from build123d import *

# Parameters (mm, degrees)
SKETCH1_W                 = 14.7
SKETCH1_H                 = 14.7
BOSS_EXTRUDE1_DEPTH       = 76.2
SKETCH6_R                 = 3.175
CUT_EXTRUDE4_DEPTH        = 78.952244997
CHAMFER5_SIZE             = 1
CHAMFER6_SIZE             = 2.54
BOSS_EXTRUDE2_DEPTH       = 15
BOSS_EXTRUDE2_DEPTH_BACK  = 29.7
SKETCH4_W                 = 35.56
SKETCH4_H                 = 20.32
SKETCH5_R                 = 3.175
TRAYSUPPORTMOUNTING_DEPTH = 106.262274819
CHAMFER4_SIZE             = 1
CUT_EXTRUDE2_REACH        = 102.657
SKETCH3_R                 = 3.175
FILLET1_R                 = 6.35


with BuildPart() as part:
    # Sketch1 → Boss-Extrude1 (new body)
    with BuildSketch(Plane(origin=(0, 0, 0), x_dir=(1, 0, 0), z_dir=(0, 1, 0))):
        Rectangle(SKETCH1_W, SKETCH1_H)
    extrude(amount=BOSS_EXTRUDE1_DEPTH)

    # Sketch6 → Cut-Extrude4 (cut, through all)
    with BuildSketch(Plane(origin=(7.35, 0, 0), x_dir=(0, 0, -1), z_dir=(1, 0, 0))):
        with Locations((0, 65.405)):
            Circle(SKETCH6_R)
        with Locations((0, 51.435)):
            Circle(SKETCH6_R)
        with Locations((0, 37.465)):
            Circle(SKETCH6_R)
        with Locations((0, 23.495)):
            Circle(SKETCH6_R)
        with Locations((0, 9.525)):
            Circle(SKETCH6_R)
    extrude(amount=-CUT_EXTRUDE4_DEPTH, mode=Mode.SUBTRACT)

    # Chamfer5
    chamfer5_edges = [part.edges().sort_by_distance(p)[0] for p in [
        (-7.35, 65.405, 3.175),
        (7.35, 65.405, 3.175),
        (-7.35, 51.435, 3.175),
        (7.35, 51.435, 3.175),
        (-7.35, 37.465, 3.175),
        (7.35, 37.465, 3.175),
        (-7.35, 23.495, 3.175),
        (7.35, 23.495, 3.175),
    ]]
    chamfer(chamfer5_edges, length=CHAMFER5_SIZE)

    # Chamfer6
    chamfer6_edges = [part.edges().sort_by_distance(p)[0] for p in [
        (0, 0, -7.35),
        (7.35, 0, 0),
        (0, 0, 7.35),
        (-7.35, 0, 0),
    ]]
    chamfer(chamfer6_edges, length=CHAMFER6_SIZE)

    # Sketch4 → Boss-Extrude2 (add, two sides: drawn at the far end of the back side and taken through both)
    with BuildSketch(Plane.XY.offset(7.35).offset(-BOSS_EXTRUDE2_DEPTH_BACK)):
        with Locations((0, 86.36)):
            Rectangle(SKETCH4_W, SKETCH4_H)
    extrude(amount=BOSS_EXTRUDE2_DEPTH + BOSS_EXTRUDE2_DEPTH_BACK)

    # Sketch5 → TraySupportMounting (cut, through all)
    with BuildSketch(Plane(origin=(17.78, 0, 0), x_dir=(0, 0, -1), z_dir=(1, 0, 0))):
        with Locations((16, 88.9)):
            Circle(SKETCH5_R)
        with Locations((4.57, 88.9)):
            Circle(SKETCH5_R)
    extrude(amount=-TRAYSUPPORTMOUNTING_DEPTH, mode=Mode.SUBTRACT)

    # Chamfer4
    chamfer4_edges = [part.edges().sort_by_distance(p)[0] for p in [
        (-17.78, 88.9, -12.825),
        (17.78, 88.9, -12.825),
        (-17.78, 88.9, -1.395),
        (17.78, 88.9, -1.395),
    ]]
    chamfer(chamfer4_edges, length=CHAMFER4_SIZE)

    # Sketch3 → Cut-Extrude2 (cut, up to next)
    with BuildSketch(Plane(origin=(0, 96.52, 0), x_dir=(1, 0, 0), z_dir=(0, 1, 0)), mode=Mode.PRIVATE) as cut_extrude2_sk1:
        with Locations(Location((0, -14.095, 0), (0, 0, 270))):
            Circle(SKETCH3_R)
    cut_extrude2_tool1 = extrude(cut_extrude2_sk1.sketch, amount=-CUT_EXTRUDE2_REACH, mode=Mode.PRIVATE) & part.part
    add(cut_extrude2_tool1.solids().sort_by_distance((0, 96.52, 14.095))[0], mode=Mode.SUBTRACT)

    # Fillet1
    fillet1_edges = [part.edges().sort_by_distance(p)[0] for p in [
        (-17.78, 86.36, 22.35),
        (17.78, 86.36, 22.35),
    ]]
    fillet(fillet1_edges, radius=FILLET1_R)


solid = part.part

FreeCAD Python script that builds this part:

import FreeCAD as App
import Part
import Sketcher
Q = App.Units.Quantity


def edges_at(feature, points):
    """Names of the edges that pass closest to the given points."""
    edges = feature.Shape.Edges
    near = lambda p: min(range(len(edges)), key=lambda i: edges[i].distToShape(Part.Vertex(*p))[0])
    return sorted({f"Edge{near(p) + 1}" for p in points})

doc = App.newDocument("Part")
body = doc.addObject("PartDesign::Body", "Body")

sketch1 = doc.addObject("Sketcher::SketchObject", "Sketch")
body.addObject(sketch1)
sketch1.AttachmentSupport = (doc.XZ_Plane, [""])
sketch1.MapMode = "FlatFace"
sketch1.addGeometry(Part.LineSegment(App.Vector(-7.35, -7.35, 0), App.Vector(-7.35, 7.35, 0)), False)
sketch1.addGeometry(Part.LineSegment(App.Vector(-7.35, 7.35, 0), App.Vector(7.35, 7.35, 0)), False)
sketch1.addGeometry(Part.LineSegment(App.Vector(7.35, 7.35, 0), App.Vector(7.35, -7.35, 0)), False)
sketch1.addGeometry(Part.LineSegment(App.Vector(7.35, -7.35, 0), App.Vector(-7.35, -7.35, 0)), False)
sketch1.addConstraint(Sketcher.Constraint("Coincident", 0, 2, 1, 1))
sketch1.addConstraint(Sketcher.Constraint("Coincident", 1, 2, 2, 1))
sketch1.addConstraint(Sketcher.Constraint("Coincident", 2, 2, 3, 1))
sketch1.addConstraint(Sketcher.Constraint("Coincident", 3, 2, 0, 1))
sketch1.addConstraint(Sketcher.Constraint("Vertical", 0))
sketch1.addConstraint(Sketcher.Constraint("Horizontal", 1))
sketch1.addConstraint(Sketcher.Constraint("Vertical", 2))
sketch1.addConstraint(Sketcher.Constraint("Horizontal", 3))
sketch1.addConstraint(Sketcher.Constraint("Symmetric", 0, 2, 2, 2, -1, 1))
sketch1.addConstraint(Sketcher.Constraint("Equal", 3, 0))
sketch1.addConstraint(Sketcher.Constraint("DistanceX", 1, 1, 1, 2, 14.7))
pad1 = doc.addObject("PartDesign::Pad", "Pad")
body.addObject(pad1)
pad1.Profile = sketch1
pad1.Length = Q("3 in")
pad1.Reversed = True

sketch2 = doc.addObject("Sketcher::SketchObject", "Sketch001")
body.addObject(sketch2)
sketch2.AttachmentSupport = (doc.YZ_Plane, [""])
sketch2.MapMode = "FlatFace"
sketch2.AttachmentOffset = App.Placement(App.Vector(0, 0, 7.35), App.Rotation())
sketch2.addGeometry(Part.Circle(App.Vector(65.405, 0, 0), App.Vector(0, 0, 1), 3.175), False)
sketch2.addGeometry(Part.Circle(App.Vector(51.435, 0, 0), App.Vector(0, 0, 1), 3.175), False)
sketch2.addGeometry(Part.Circle(App.Vector(37.465, 0, 0), App.Vector(0, 0, 1), 3.175), False)
sketch2.addGeometry(Part.Circle(App.Vector(23.495, 0, 0), App.Vector(0, 0, 1), 3.175), False)
sketch2.addGeometry(Part.Circle(App.Vector(9.525, 0, 0), App.Vector(0, 0, 1), 3.175), False)
sketch2.addConstraint(Sketcher.Constraint("Equal", 0, 1))
sketch2.addConstraint(Sketcher.Constraint("Equal", 1, 2))
sketch2.addConstraint(Sketcher.Constraint("Equal", 2, 3))
sketch2.addConstraint(Sketcher.Constraint("Equal", 3, 4))
sketch2.addConstraint(Sketcher.Constraint("PointOnObject", 0, 3, -1))
sketch2.addConstraint(Sketcher.Constraint("PointOnObject", 1, 3, -1))
sketch2.addConstraint(Sketcher.Constraint("PointOnObject", 2, 3, -1))
sketch2.addConstraint(Sketcher.Constraint("PointOnObject", 3, 3, -1))
sketch2.addConstraint(Sketcher.Constraint("PointOnObject", 4, 3, -1))
sketch2.addConstraint(Sketcher.Constraint("Diameter", 0, Q("0.25 in")))
sketch2.addConstraint(Sketcher.Constraint("DistanceX", 2, 3, 0, 3, Q("1.1 in")))
sketch2.addConstraint(Sketcher.Constraint("DistanceX", 3, 3, 1, 3, Q("1.1 in")))
sketch2.addConstraint(Sketcher.Constraint("DistanceX", 4, 3, 2, 3, Q("1.1 in")))
sketch2.addConstraint(Sketcher.Constraint("DistanceX", 1, 3, 0, 3, Q("0.55 in")))
sketch2.addConstraint(Sketcher.Constraint("DistanceX", -1, 1, 0, 3, Q("2.575 in")))
pocket1 = doc.addObject("PartDesign::Pocket", "Pocket")
body.addObject(pocket1)
pocket1.Profile = sketch2
pocket1.Type = "ThroughAll"
doc.recompute()

chamfer = doc.addObject("PartDesign::Chamfer", "Chamfer")
body.addObject(chamfer)
chamfer.Base = (pocket1, edges_at(pocket1, [
    (-7.35, 65.405, 3.175),
    (7.35, 65.405, 3.175),
    (-7.35, 51.435, 3.175),
    (7.35, 51.435, 3.175),
    (-7.35, 37.465, 3.175),
    (7.35, 37.465, 3.175),
    (-7.35, 23.495, 3.175),
    (7.35, 23.495, 3.175),
]))
chamfer.Size = 1
doc.recompute()

chamfer2 = doc.addObject("PartDesign::Chamfer", "Chamfer001")
body.addObject(chamfer2)
chamfer2.Base = (chamfer, edges_at(chamfer, [
    (0, 0, -7.35),
    (7.35, 0, 0),
    (0, 0, 7.35),
    (-7.35, 0, 0),
]))
chamfer2.Size = Q("0.1 in")

sketch3 = doc.addObject("Sketcher::SketchObject", "Sketch002")
body.addObject(sketch3)
sketch3.AttachmentSupport = (doc.XY_Plane, [""])
sketch3.MapMode = "FlatFace"
sketch3.AttachmentOffset = App.Placement(App.Vector(0, 0, 7.35), App.Rotation())
sketch3.addGeometry(Part.LineSegment(App.Vector(-17.78, 96.52, 0), App.Vector(-17.78, 76.2, 0)), False)
sketch3.addGeometry(Part.LineSegment(App.Vector(-17.78, 76.2, 0), App.Vector(17.78, 76.2, 0)), False)
sketch3.addGeometry(Part.LineSegment(App.Vector(17.78, 76.2, 0), App.Vector(17.78, 96.52, 0)), False)
sketch3.addGeometry(Part.LineSegment(App.Vector(17.78, 96.52, 0), App.Vector(-17.78, 96.52, 0)), False)
sketch3.addConstraint(Sketcher.Constraint("Coincident", 0, 2, 1, 1))
sketch3.addConstraint(Sketcher.Constraint("Coincident", 1, 2, 2, 1))
sketch3.addConstraint(Sketcher.Constraint("Coincident", 2, 2, 3, 1))
sketch3.addConstraint(Sketcher.Constraint("Coincident", 3, 2, 0, 1))
sketch3.addConstraint(Sketcher.Constraint("Vertical", 0))
sketch3.addConstraint(Sketcher.Constraint("Horizontal", 1))
sketch3.addConstraint(Sketcher.Constraint("Vertical", 2))
sketch3.addConstraint(Sketcher.Constraint("Horizontal", 3))
sketch3.addConstraint(Sketcher.Constraint("DistanceX", 1, 1, 1, 2, Q("1.4 in")))
sketch3.addConstraint(Sketcher.Constraint("DistanceY", 0, 2, 0, 1, Q("0.8 in")))
sketch3.addConstraint(Sketcher.Constraint("DistanceY", -1, 1, 0, 2, Q("3 in")))
sketch3.addConstraint(Sketcher.Constraint("DistanceX", 0, 2, -1, 1, Q("0.7 in")))
pad2 = doc.addObject("PartDesign::Pad", "Pad001")
body.addObject(pad2)
pad2.Profile = sketch3
pad2.Type = "TwoLengths"
pad2.Length = 15
pad2.Length2 = 29.7

sketch4 = doc.addObject("Sketcher::SketchObject", "Sketch003")
body.addObject(sketch4)
sketch4.AttachmentSupport = (doc.YZ_Plane, [""])
sketch4.MapMode = "FlatFace"
sketch4.AttachmentOffset = App.Placement(App.Vector(0, 0, 0.7 * 25.4), App.Rotation())
sketch4.addGeometry(Part.Circle(App.Vector(88.9, -16, 0), App.Vector(0, 0, 1), 3.175), False)
sketch4.addGeometry(Part.Circle(App.Vector(88.9, -4.57, 0), App.Vector(0, 0, 1), 3.175), False)
sketch4.addConstraint(Sketcher.Constraint("Equal", 0, 1))
sketch4.addConstraint(Sketcher.Constraint("Vertical", 0, 3, 1, 3))
sketch4.addConstraint(Sketcher.Constraint("Diameter", 0, Q("0.25 in")))
sketch4.addConstraint(Sketcher.Constraint("DistanceX", -1, 1, 0, 3, Q("3.5 in")))
sketch4.addConstraint(Sketcher.Constraint("DistanceY", 0, 3, 1, 3, Q("0.45 in")))
sketch4.addConstraint(Sketcher.Constraint("DistanceY", 0, 3, -1, 1, 16.0))
pocket2 = doc.addObject("PartDesign::Pocket", "Pocket001")
body.addObject(pocket2)
pocket2.Profile = sketch4
pocket2.Type = "ThroughAll"
doc.recompute()

chamfer3 = doc.addObject("PartDesign::Chamfer", "Chamfer002")
body.addObject(chamfer3)
chamfer3.Base = (pocket2, edges_at(pocket2, [
    (-17.78, 88.9, -12.825),
    (17.78, 88.9, -12.825),
    (-17.78, 88.9, -1.395),
    (17.78, 88.9, -1.395),
]))
chamfer3.Size = 1

sketch5 = doc.addObject("Sketcher::SketchObject", "Sketch004")
body.addObject(sketch5)
sketch5.AttachmentSupport = (doc.XZ_Plane, [""])
sketch5.MapMode = "FlatFace"
sketch5.AttachmentOffset = App.Placement(App.Vector(0, 0, -3.8 * 25.4), App.Rotation())
sketch5.addGeometry(Part.Circle(App.Vector(0, 14.095, 0), App.Vector(0, 0, 1), 3.175), False)
sketch5.addConstraint(Sketcher.Constraint("PointOnObject", 0, 3, -2))
sketch5.addConstraint(Sketcher.Constraint("Diameter", 0, Q("0.25 in")))
sketch5.addConstraint(Sketcher.Constraint("DistanceY", -1, 1, 0, 3, 14.095))
pocket3 = doc.addObject("PartDesign::Pocket", "Pocket002")
body.addObject(pocket3)
pocket3.Profile = sketch5
pocket3.Type = "UpToFirst"
pocket3.Reversed = True
doc.recompute()

fillet = doc.addObject("PartDesign::Fillet", "Fillet")
body.addObject(fillet)
fillet.Base = (pocket3, edges_at(pocket3, [(-17.78, 86.36, 22.35), (17.78, 86.36, 22.35)]))
fillet.Radius = Q("0.25 in")

doc.recompute()
